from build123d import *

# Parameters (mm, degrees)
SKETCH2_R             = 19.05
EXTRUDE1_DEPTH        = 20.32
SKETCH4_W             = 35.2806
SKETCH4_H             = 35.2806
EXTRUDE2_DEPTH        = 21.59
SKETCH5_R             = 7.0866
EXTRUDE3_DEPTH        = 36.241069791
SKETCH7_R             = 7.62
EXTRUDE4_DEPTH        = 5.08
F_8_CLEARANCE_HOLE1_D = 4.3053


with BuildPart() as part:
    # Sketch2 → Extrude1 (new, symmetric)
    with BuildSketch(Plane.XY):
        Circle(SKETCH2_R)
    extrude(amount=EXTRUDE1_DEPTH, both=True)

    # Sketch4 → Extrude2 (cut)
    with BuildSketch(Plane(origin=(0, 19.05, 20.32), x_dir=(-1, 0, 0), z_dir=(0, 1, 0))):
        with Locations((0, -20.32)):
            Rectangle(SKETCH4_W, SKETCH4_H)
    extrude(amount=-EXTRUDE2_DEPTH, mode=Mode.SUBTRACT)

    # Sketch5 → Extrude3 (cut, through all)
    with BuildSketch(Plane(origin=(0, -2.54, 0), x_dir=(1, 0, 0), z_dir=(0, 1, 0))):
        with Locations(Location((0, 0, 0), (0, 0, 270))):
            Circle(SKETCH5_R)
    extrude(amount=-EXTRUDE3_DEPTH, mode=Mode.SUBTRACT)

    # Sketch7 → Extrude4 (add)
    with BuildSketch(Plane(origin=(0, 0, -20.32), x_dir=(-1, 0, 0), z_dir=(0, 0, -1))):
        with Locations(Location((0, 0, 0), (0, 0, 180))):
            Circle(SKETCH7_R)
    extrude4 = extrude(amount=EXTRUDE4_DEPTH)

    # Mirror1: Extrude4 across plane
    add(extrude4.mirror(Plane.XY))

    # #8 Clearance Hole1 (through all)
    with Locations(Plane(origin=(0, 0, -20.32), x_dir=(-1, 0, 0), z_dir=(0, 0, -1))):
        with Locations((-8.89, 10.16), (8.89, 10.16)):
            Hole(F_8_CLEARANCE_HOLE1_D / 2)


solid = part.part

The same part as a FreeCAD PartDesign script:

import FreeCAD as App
import Part
import Sketcher
from FreeCAD import Vector
Q = App.Units.Quantity

doc = App.newDocument("Part")
body = doc.addObject("PartDesign::Body", "Body")

sketch1 = doc.addObject("Sketcher::SketchObject", "Sketch")
body.addObject(sketch1)
sketch1.AttachmentSupport = (doc.XY_Plane, [""])
sketch1.MapMode = "FlatFace"
sketch1.addGeometry(Part.Circle(Vector(0, 0, 0), Vector(0, 0, 1), 19), False)
sketch1.addConstraint([
    Sketcher.Constraint("Coincident", 0, 3, -1, 1),
    Sketcher.Constraint("Diameter", 0, Q("1.5 in")),
])
pad1 = doc.addObject("PartDesign::Pad", "Pad")
body.addObject(pad1)
pad1.Profile = sketch1
pad1.Length = Q("1.6 in")
pad1.Midplane = True

sketch2 = doc.addObject("Sketcher::SketchObject", "Sketch001")
body.addObject(sketch2)
sketch2.AttachmentSupport = (doc.XZ_Plane, [""])
sketch2.MapMode = "FlatFace"
sketch2.AttachmentOffset = App.Placement(Vector(0, 0, -0.75 * 25.4), App.Rotation())
sketch2.addGeometry([
    Part.LineSegment(Vector(18, 18, 0), Vector(18, -18, 0)),
    Part.LineSegment(Vector(18, -18, 0), Vector(-18, -18, 0)),
    Part.LineSegment(Vector(-18, -18, 0), Vector(-18, 18, 0)),
    Part.LineSegment(Vector(-18, 18, 0), Vector(18, 18, 0)),
], False)
sketch2.addConstraint([
    Sketcher.Constraint("Coincident", 0, 2, 1, 1),
    Sketcher.Constraint("Coincident", 1, 2, 2, 1),
    Sketcher.Constraint("Coincident", 2, 2, 3, 1),
    Sketcher.Constraint("Coincident", 3, 2, 0, 1),
    Sketcher.Constraint("Vertical", 0),
    Sketcher.Constraint("Horizontal", 1),
    Sketcher.Constraint("Vertical", 2),
    Sketcher.Constraint("Horizontal", 3),
    Sketcher.Constraint("Symmetric", 0, 2, 2, 2, -1, 1),
    Sketcher.Constraint("Equal", 3, 0),
    Sketcher.Constraint("DistanceX", 1, 2, 1, 1, Q("1.389 in")),
])
pocket1 = doc.addObject("PartDesign::Pocket", "Pocket")
body.addObject(pocket1)
pocket1.Profile = sketch2
pocket1.Length = Q("0.85 in")
pocket1.Reversed = True

sketch3 = doc.addObject("Sketcher::SketchObject", "Sketch002")
body.addObject(sketch3)
sketch3.AttachmentSupport = (doc.XZ_Plane, [""])
sketch3.MapMode = "FlatFace"
sketch3.AttachmentOffset = App.Placement(Vector(0, 0, 0.1 * 25.4), App.Rotation())
sketch3.addGeometry(Part.Circle(Vector(0, 0, 0), Vector(0, 0, 1), 7), False)
sketch3.addConstraint([
    Sketcher.Constraint("Coincident", 0, 3, -1, 1),
    Sketcher.Constraint("Diameter", 0, Q("0.558 in")),
])
pocket2 = doc.addObject("PartDesign::Pocket", "Pocket001")
body.addObject(pocket2)
pocket2.Profile = sketch3
pocket2.Type = "ThroughAll"
pocket2.Reversed = True

sketch4 = doc.addObject("Sketcher::SketchObject", "Sketch003")
body.addObject(sketch4)
sketch4.AttachmentSupport = (doc.XY_Plane, [""])
sketch4.MapMode = "FlatFace"
sketch4.AttachmentOffset = App.Placement(Vector(0, 0, -0.8 * 25.4), App.Rotation())
sketch4.addGeometry(Part.Circle(Vector(0, 0, 0), Vector(0, 0, 1), 8), False)
sketch4.addConstraint([
    Sketcher.Constraint("Coincident", 0, 3, -1, 1),
    Sketcher.Constraint("Diameter", 0, Q("0.6 in")),
])
pad2 = doc.addObject("PartDesign::Pad", "Pad001")
body.addObject(pad2)
pad2.Profile = sketch4
pad2.Length = Q("0.2 in")
pad2.Reversed = True
doc.recompute()

mirrored = doc.addObject("PartDesign::Mirrored", "Mirrored")
body.addObject(mirrored)
mirrored.Originals = [pad2]
mirrored.MirrorPlane = (doc.XY_Plane, [""])
body.Tip = mirrored

sketch5 = doc.addObject("Sketcher::SketchObject", "Sketch004")
body.addObject(sketch5)
sketch5.AttachmentSupport = (doc.XY_Plane, [""])
sketch5.MapMode = "FlatFace"
sketch5.AttachmentOffset = App.Placement(Vector(0, 0, -0.8 * 25.4), App.Rotation())
sketch5.addGeometry([
    Part.Circle(Vector(8.9, 10.2, 0), Vector(0, 0, 1), 2.2),
    Part.Circle(Vector(-8.9, 10.2, 0), Vector(0, 0, 1), 2.2),
], False)
sketch5.addConstraint([
    Sketcher.Constraint("Equal", 0, 1),
    Sketcher.Constraint("Symmetric", 0, 3, 1, 3, -2),
    Sketcher.Constraint("Diameter", 0, Q("0.1695 in")),
    Sketcher.Constraint("DistanceY", -1, 1, 0, 3, Q("0.4 in")),
    Sketcher.Constraint("DistanceX", 1, 3, 0, 3, Q("0.7 in")),
])
doc.recompute()
hole = doc.addObject("PartDesign::Hole", "Hole")
body.addObject(hole)
hole.Profile = sketch5
hole.ThreadType = "None"
hole.Diameter = Q("0.1695 in")
hole.DepthType = "ThroughAll"
hole.Reversed = True

doc.recompute()
